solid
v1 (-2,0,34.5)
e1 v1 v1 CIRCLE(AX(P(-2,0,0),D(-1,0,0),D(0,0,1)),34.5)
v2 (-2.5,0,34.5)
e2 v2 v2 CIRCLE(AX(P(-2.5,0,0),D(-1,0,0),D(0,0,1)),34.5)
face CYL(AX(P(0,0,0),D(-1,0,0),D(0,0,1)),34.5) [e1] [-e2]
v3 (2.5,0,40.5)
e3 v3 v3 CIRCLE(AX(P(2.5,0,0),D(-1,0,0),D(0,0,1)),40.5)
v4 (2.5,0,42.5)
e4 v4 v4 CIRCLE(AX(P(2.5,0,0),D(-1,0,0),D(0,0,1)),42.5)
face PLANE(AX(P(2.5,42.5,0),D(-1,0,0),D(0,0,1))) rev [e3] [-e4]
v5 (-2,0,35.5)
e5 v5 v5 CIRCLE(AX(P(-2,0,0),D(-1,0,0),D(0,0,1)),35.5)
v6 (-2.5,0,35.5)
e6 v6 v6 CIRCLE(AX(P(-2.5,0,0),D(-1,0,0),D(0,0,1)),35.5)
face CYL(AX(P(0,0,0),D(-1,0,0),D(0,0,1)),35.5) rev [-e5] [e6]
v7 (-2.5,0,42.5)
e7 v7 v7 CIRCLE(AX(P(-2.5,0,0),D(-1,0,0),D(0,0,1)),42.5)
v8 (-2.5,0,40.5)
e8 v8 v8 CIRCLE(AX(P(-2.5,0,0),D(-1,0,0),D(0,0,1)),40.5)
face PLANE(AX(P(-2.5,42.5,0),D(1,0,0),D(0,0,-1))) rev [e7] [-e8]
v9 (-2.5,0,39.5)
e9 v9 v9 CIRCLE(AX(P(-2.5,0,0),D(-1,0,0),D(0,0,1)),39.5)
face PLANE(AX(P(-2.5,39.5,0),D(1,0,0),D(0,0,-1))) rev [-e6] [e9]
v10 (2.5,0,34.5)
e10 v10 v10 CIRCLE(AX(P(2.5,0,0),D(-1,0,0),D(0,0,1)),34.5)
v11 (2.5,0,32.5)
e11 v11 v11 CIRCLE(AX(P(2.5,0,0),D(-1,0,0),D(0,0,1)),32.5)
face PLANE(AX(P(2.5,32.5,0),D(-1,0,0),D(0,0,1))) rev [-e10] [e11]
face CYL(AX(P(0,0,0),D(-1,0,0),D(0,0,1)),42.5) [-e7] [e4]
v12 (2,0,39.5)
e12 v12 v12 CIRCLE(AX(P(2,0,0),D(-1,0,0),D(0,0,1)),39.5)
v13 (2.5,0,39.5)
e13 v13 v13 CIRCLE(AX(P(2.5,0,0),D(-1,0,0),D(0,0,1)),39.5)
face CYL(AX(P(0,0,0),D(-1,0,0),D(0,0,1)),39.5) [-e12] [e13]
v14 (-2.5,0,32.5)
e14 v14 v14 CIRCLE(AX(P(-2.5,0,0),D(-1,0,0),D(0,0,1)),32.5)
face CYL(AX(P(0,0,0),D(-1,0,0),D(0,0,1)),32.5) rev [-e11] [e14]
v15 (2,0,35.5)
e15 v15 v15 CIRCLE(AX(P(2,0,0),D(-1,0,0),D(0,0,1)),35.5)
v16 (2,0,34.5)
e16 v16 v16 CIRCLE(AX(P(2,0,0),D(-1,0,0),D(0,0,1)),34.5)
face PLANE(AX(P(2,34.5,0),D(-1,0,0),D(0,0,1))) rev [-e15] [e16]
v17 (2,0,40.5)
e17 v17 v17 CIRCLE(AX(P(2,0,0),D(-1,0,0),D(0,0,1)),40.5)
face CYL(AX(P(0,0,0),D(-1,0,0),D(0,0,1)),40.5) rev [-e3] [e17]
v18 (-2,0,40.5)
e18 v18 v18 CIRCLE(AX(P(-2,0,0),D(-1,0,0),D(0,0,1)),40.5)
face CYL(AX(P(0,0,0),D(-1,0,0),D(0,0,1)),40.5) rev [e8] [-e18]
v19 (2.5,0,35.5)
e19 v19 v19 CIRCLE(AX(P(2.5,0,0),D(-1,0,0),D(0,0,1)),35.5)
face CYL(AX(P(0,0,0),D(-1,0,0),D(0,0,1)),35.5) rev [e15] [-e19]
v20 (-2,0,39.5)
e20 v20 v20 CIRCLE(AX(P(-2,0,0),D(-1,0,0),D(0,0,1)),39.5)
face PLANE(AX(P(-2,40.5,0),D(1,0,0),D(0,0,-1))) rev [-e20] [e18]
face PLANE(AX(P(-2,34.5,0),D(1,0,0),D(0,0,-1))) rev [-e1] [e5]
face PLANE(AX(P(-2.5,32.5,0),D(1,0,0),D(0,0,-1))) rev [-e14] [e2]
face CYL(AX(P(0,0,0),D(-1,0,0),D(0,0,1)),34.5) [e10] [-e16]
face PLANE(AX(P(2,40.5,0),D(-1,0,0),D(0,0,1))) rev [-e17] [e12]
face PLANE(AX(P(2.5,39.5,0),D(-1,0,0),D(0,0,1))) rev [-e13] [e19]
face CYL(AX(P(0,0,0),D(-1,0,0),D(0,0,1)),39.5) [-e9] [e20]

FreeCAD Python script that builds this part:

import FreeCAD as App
import Part
import Sketcher
from FreeCAD import Vector

doc = App.newDocument("Part")
body = doc.addObject("PartDesign::Body", "Body")

# Sketch on XY plane
sketch1 = body.newObject("Sketcher::SketchObject", "Sketch")
sketch1.AttachmentSupport = (doc.getObject("XY_Plane"), [""])
sketch1.MapMode = "FlatFace"
sketch1.addGeometry([
    Part.LineSegment(Vector(2.5, 42.5, 0), Vector(-2.5, 42.5, 0)),  # 0
    Part.LineSegment(Vector(-2.5, 42.5, 0), Vector(-2.5, 40.5, 0)),  # 1
    Part.LineSegment(Vector(-2.5, 40.5, 0), Vector(-2, 40.5, 0)),  # 2
    Part.LineSegment(Vector(-2, 40.5, 0), Vector(-2, 39.5, 0)),  # 3
    Part.LineSegment(Vector(-2, 39.5, 0), Vector(-2.5, 39.5, 0)),  # 4
    Part.LineSegment(Vector(-2.5, 39.5, 0), Vector(-2.5, 35.5, 0)),  # 5
    Part.LineSegment(Vector(-2.5, 35.5, 0), Vector(-2, 35.5, 0)),  # 6
    Part.LineSegment(Vector(-2, 35.5, 0), Vector(-2, 34.5, 0)),  # 7
    Part.LineSegment(Vector(-2, 34.5, 0), Vector(-2.5, 34.5, 0)),  # 8
    Part.LineSegment(Vector(-2.5, 34.5, 0), Vector(-2.5, 32.5, 0)),  # 9
    Part.LineSegment(Vector(-2.5, 32.5, 0), Vector(2.5, 32.5, 0)),  # 10
    Part.LineSegment(Vector(2.5, 32.5, 0), Vector(2.5, 34.5, 0)),  # 11
    Part.LineSegment(Vector(2.5, 34.5, 0), Vector(2, 34.5, 0)),  # 12
    Part.LineSegment(Vector(2, 34.5, 0), Vector(2, 35.5, 0)),  # 13
    Part.LineSegment(Vector(2, 35.5, 0), Vector(2.5, 35.5, 0)),  # 14
    Part.LineSegment(Vector(2.5, 35.5, 0), Vector(2.5, 39.5, 0)),  # 15
    Part.LineSegment(Vector(2.5, 39.5, 0), Vector(2, 39.5, 0)),  # 16
    Part.LineSegment(Vector(2, 39.5, 0), Vector(2, 40.5, 0)),  # 17
    Part.LineSegment(Vector(2, 40.5, 0), Vector(2.5, 40.5, 0)),  # 18
    Part.LineSegment(Vector(2.5, 40.5, 0), Vector(2.5, 42.5, 0)),  # 19
], False)
sketch1.addConstraint([
    Sketcher.Constraint("Coincident", 0, 2, 1, 1),
    Sketcher.Constraint("Coincident", 1, 2, 2, 1),
    Sketcher.Constraint("Coincident", 2, 2, 3, 1),
    Sketcher.Constraint("Coincident", 3, 2, 4, 1),
    Sketcher.Constraint("Coincident", 4, 2, 5, 1),
    Sketcher.Constraint("Coincident", 5, 2, 6, 1),
    Sketcher.Constraint("Coincident", 6, 2, 7, 1),
    Sketcher.Constraint("Coincident", 7, 2, 8, 1),
    Sketcher.Constraint("Coincident", 8, 2, 9, 1),
    Sketcher.Constraint("Coincident", 9, 2, 10, 1),
    Sketcher.Constraint("Coincident", 10, 2, 11, 1),
    Sketcher.Constraint("Coincident", 11, 2, 12, 1),
    Sketcher.Constraint("Coincident", 12, 2, 13, 1),
    Sketcher.Constraint("Coincident", 13, 2, 14, 1),
    Sketcher.Constraint("Coincident", 14, 2, 15, 1),
    Sketcher.Constraint("Coincident", 15, 2, 16, 1),
    Sketcher.Constraint("Coincident", 16, 2, 17, 1),
    Sketcher.Constraint("Coincident", 17, 2, 18, 1),
    Sketcher.Constraint("Coincident", 18, 2, 19, 1),
    Sketcher.Constraint("Coincident", 19, 2, 0, 1),
    Sketcher.Constraint("Horizontal", 0),
    Sketcher.Constraint("Vertical", 1),
    Sketcher.Constraint("Horizontal", 2),
    Sketcher.Constraint("Vertical", 3),
    Sketcher.Constraint("Horizontal", 4),
    Sketcher.Constraint("Vertical", 5),
    Sketcher.Constraint("Horizontal", 6),
    Sketcher.Constraint("Vertical", 7),
    Sketcher.Constraint("Horizontal", 8),
    Sketcher.Constraint("Vertical", 9),
    Sketcher.Constraint("Horizontal", 10),
    Sketcher.Constraint("Vertical", 11),
    Sketcher.Constraint("Horizontal", 12),
    Sketcher.Constraint("Vertical", 13),
    Sketcher.Constraint("Horizontal", 14),
    Sketcher.Constraint("Vertical", 15),
    Sketcher.Constraint("Horizontal", 16),
    Sketcher.Constraint("Vertical", 17),
    Sketcher.Constraint("Horizontal", 18),
    Sketcher.Constraint("Vertical", 19),
    Sketcher.Constraint("Symmetric", 8, 2, 11, 2, -2),
    Sketcher.Constraint("Symmetric", 6, 2, 13, 2, -2),
    Sketcher.Constraint("Symmetric", 4, 2, 15, 2, -2),
    Sketcher.Constraint("Symmetric", 2, 2, 17, 2, -2),
    Sketcher.Constraint("Vertical", 1, 2, 4, 2),
    Sketcher.Constraint("Vertical", 3, 2, 6, 2),
    Sketcher.Constraint("Vertical", 5, 2, 8, 2),
    Sketcher.Constraint("Vertical", 15, 2, 18, 2),
    Sketcher.Constraint("Equal", 3, 7),
    Sketcher.Constraint("Equal", 1, 9),
    Sketcher.Constraint("DistanceX", 0, 2, 0, 1, 5.0),
    Sketcher.Constraint("DistanceY", 1, 2, 1, 1, 2.0),
    Sketcher.Constraint("DistanceY", 3, 2, 3, 1, 1.0),
    Sketcher.Constraint("DistanceY", 5, 2, 5, 1, 4.0),
    Sketcher.Constraint("DistanceX", 2, 1, 2, 2, 0.5),
    Sketcher.Constraint("DistanceY", -1, 1, 0, 2, 42.5),
])
revolution = body.newObject("PartDesign::Revolution", "Revolution")
revolution.Profile = sketch1
revolution.ReferenceAxis = (sketch1, ["H_Axis"])
revolution.Angle = 360

doc.recompute()
